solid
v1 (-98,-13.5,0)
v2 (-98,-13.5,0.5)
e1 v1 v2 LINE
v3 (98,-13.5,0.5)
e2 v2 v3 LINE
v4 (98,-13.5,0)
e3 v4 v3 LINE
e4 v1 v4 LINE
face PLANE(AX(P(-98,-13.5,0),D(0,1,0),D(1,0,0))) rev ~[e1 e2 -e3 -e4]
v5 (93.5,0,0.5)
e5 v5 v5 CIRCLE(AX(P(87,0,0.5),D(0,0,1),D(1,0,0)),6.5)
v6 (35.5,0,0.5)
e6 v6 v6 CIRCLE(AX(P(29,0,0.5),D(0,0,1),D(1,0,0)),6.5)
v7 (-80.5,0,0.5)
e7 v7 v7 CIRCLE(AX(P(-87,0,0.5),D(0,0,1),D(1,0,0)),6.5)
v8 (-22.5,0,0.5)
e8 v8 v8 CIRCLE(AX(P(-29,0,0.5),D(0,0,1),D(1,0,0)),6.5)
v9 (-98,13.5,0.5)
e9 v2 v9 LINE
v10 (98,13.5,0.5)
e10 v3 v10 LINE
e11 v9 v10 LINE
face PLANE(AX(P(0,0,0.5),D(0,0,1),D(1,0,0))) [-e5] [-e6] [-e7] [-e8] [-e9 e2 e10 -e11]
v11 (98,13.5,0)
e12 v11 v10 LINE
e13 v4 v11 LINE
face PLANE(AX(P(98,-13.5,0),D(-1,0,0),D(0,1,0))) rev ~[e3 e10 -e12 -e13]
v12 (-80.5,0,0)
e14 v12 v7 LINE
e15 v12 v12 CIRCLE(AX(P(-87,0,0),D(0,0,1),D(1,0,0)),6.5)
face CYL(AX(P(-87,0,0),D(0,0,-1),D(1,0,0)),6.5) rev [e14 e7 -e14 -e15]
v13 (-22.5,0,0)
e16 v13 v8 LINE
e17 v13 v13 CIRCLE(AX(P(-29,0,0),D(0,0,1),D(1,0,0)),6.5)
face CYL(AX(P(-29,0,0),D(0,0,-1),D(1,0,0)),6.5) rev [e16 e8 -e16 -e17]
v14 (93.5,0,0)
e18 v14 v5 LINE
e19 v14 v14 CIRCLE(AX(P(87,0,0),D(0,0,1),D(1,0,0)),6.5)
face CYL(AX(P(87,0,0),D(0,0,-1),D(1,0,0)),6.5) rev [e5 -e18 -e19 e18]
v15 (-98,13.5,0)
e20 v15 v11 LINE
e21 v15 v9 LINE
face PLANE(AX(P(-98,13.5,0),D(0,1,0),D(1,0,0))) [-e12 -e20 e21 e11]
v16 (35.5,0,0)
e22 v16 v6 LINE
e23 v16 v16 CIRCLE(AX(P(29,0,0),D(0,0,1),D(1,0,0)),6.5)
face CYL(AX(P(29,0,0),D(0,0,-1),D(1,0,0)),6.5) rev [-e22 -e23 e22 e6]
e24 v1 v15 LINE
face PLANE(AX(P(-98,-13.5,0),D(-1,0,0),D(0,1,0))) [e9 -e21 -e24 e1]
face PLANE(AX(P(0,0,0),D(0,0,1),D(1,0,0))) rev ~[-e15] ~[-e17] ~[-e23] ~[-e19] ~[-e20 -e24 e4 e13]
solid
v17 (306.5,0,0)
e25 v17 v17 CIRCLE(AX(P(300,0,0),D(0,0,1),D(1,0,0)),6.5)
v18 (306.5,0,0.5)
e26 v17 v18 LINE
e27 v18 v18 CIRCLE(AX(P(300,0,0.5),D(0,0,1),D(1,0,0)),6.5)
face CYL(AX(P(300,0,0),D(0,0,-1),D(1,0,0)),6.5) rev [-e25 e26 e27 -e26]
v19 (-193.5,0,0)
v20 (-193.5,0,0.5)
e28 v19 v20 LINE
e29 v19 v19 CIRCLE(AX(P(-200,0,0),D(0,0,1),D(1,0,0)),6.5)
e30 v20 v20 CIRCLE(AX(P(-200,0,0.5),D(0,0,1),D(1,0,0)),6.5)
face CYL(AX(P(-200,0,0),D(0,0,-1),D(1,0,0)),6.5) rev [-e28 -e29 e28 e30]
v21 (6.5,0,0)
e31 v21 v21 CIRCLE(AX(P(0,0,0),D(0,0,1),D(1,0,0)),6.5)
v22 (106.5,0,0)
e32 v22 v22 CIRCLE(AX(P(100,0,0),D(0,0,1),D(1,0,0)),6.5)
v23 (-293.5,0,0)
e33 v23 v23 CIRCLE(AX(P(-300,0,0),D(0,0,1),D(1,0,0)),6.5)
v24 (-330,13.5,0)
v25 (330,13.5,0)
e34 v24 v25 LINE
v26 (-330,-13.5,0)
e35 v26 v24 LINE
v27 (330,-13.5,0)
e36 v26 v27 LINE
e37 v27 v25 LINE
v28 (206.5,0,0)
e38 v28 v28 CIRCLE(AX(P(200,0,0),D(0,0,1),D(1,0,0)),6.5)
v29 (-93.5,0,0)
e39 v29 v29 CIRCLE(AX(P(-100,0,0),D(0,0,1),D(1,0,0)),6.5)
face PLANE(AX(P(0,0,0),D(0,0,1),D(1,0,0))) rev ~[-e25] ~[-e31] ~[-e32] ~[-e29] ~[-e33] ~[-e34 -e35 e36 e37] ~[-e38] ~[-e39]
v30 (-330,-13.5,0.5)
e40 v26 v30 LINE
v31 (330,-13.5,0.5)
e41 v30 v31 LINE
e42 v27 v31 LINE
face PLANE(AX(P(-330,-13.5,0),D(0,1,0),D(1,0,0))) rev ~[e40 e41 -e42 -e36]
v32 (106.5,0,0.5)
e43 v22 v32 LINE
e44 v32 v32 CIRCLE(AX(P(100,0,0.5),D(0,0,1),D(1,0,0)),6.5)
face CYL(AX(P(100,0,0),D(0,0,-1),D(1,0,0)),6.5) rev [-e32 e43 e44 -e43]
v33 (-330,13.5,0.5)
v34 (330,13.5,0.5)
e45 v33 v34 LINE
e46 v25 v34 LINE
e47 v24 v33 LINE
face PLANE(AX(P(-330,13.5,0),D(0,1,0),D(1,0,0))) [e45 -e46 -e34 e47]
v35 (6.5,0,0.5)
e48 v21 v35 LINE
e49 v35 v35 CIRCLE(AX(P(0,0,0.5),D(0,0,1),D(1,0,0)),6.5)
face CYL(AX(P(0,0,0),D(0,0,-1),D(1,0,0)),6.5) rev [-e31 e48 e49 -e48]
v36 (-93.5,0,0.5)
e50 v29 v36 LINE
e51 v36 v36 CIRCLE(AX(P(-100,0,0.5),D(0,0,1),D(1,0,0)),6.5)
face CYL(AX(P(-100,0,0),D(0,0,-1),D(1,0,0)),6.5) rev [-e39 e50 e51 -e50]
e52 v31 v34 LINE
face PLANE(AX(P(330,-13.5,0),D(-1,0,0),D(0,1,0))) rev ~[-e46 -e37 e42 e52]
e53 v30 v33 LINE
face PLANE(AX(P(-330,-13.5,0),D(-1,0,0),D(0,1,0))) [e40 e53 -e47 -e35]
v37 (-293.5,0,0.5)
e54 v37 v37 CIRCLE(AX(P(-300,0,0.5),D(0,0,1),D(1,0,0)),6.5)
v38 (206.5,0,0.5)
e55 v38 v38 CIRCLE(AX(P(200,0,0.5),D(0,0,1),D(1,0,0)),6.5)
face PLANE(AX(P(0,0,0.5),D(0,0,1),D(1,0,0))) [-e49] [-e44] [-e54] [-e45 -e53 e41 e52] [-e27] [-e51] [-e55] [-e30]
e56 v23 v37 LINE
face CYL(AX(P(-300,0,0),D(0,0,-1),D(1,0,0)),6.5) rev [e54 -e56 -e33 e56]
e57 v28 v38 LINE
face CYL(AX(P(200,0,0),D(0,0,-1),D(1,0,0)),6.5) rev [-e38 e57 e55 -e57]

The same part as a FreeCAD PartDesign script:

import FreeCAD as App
import Part
import Sketcher
from FreeCAD import Vector

doc = App.newDocument("Part")
body = doc.addObject("PartDesign::Body", "Body")

sketch1 = body.newObject("Sketcher::SketchObject", "Sketch")
sketch1.AttachmentSupport = (doc.getObject("XY_Plane"), [""])
sketch1.MapMode = "FlatFace"
sketch1.addGeometry(Part.LineSegment(Vector(-98, 13.5, 0), Vector(-98, -13.5, 0)), False)
sketch1.addGeometry(Part.LineSegment(Vector(-98, -13.5, 0), Vector(98, -13.5, 0)), False)
sketch1.addGeometry(Part.LineSegment(Vector(98, -13.5, 0), Vector(98, 13.5, 0)), False)
sketch1.addGeometry(Part.LineSegment(Vector(98, 13.5, 0), Vector(-98, 13.5, 0)), False)
sketch1.addGeometry(Part.Circle(Vector(-87, 0, 0), Vector(0, 0, 1), 6.5), False)
sketch1.addGeometry(Part.Circle(Vector(-29, 0, 0), Vector(0, 0, 1), 6.5), False)
sketch1.addGeometry(Part.Circle(Vector(29, 0, 0), Vector(0, 0, 1), 6.5), False)
sketch1.addGeometry(Part.Circle(Vector(87, 0, 0), Vector(0, 0, 1), 6.5), False)
sketch1.addConstraint(Sketcher.Constraint("Coincident", 0, 2, 1, 1))
sketch1.addConstraint(Sketcher.Constraint("Coincident", 1, 2, 2, 1))
sketch1.addConstraint(Sketcher.Constraint("Coincident", 2, 2, 3, 1))
sketch1.addConstraint(Sketcher.Constraint("Coincident", 3, 2, 0, 1))
sketch1.addConstraint(Sketcher.Constraint("Vertical", 0))
sketch1.addConstraint(Sketcher.Constraint("Horizontal", 1))
sketch1.addConstraint(Sketcher.Constraint("Vertical", 2))
sketch1.addConstraint(Sketcher.Constraint("Horizontal", 3))
sketch1.addConstraint(Sketcher.Constraint("Equal", 4, 5))
sketch1.addConstraint(Sketcher.Constraint("Equal", 5, 6))
sketch1.addConstraint(Sketcher.Constraint("Equal", 6, 7))
sketch1.addConstraint(Sketcher.Constraint("Symmetric", 5, 3, 6, 3, -1, 1))
sketch1.addConstraint(Sketcher.Constraint("Symmetric", 4, 3, 7, 3, -1, 1))
sketch1.addConstraint(Sketcher.Constraint("Symmetric", 0, 2, 2, 2, -1, 1))
sketch1.addConstraint(Sketcher.Constraint("PointOnObject", 4, 3, -1))
sketch1.addConstraint(Sketcher.Constraint("PointOnObject", 5, 3, -1))
sketch1.addConstraint(Sketcher.Constraint("Diameter", 4, 13.0))
sketch1.addConstraint(Sketcher.Constraint("DistanceX", 1, 1, 1, 2, 196.0))
sketch1.addConstraint(Sketcher.Constraint("DistanceY", 0, 2, 0, 1, 27.0))
sketch1.addConstraint(Sketcher.Constraint("DistanceX", 4, 3, -1, 1, 87.0))
sketch1.addConstraint(Sketcher.Constraint("DistanceX", 5, 3, -1, 1, 29.0))
pad1 = body.newObject("PartDesign::Pad", "Pad")
pad1.Profile = sketch1
pad1.Length = 0.5
body2 = doc.addObject("PartDesign::Body", "Body001")

sketch2 = body2.newObject("Sketcher::SketchObject", "Sketch001")
sketch2.AttachmentSupport = (doc.getObject("XY_Plane001"), [""])
sketch2.MapMode = "FlatFace"
sketch2.addGeometry(Part.LineSegment(Vector(-330, 13.5, 0), Vector(-330, -13.5, 0)), False)
sketch2.addGeometry(Part.LineSegment(Vector(-330, -13.5, 0), Vector(330, -13.5, 0)), False)
sketch2.addGeometry(Part.LineSegment(Vector(330, -13.5, 0), Vector(330, 13.5, 0)), False)
sketch2.addGeometry(Part.LineSegment(Vector(330, 13.5, 0), Vector(-330, 13.5, 0)), False)
sketch2.addGeometry(Part.Circle(Vector(-300, 0, 0), Vector(0, 0, 1), 6.5), False)
sketch2.addGeometry(Part.Circle(Vector(-200, 0, 0), Vector(0, 0, 1), 6.5), False)
sketch2.addGeometry(Part.Circle(Vector(-100, 0, 0), Vector(0, 0, 1), 6.5), False)
sketch2.addGeometry(Part.Circle(Vector(0, 0, 0), Vector(0, 0, 1), 6.5), False)
sketch2.addGeometry(Part.Circle(Vector(100, 0, 0), Vector(0, 0, 1), 6.5), False)
sketch2.addGeometry(Part.Circle(Vector(200, 0, 0), Vector(0, 0, 1), 6.5), False)
sketch2.addGeometry(Part.Circle(Vector(300, 0, 0), Vector(0, 0, 1), 6.5), False)
sketch2.addConstraint(Sketcher.Constraint("Coincident", 0, 2, 1, 1))
sketch2.addConstraint(Sketcher.Constraint("Coincident", 1, 2, 2, 1))
sketch2.addConstraint(Sketcher.Constraint("Coincident", 2, 2, 3, 1))
sketch2.addConstraint(Sketcher.Constraint("Coincident", 3, 2, 0, 1))
sketch2.addConstraint(Sketcher.Constraint("Vertical", 0))
sketch2.addConstraint(Sketcher.Constraint("Horizontal", 1))
sketch2.addConstraint(Sketcher.Constraint("Vertical", 2))
sketch2.addConstraint(Sketcher.Constraint("Horizontal", 3))
sketch2.addConstraint(Sketcher.Constraint("Coincident", 7, 3, -1, 1))
sketch2.addConstraint(Sketcher.Constraint("Equal", 4, 5))
sketch2.addConstraint(Sketcher.Constraint("Equal", 5, 6))
sketch2.addConstraint(Sketcher.Constraint("Equal", 6, 7))
sketch2.addConstraint(Sketcher.Constraint("Equal", 7, 8))
sketch2.addConstraint(Sketcher.Constraint("Equal", 8, 9))
sketch2.addConstraint(Sketcher.Constraint("Equal", 9, 10))
sketch2.addConstraint(Sketcher.Constraint("Symmetric", 6, 3, 8, 3, -1, 1))
sketch2.addConstraint(Sketcher.Constraint("Symmetric", 5, 3, 9, 3, -1, 1))
sketch2.addConstraint(Sketcher.Constraint("Symmetric", 4, 3, 10, 3, -1, 1))
sketch2.addConstraint(Sketcher.Constraint("Symmetric", 0, 2, 2, 2, -1, 1))
sketch2.addConstraint(Sketcher.Constraint("PointOnObject", 4, 3, -1))
sketch2.addConstraint(Sketcher.Constraint("PointOnObject", 5, 3, -1))
sketch2.addConstraint(Sketcher.Constraint("PointOnObject", 6, 3, -1))
sketch2.addConstraint(Sketcher.Constraint("Diameter", 4, 13.0))
sketch2.addConstraint(Sketcher.Constraint("DistanceX", 1, 1, 1, 2, 660.0))
sketch2.addConstraint(Sketcher.Constraint("DistanceY", 0, 2, 0, 1, 27.0))
sketch2.addConstraint(Sketcher.Constraint("DistanceX", 4, 3, -1, 1, 300.0))
sketch2.addConstraint(Sketcher.Constraint("DistanceX", 5, 3, -1, 1, 200.0))
sketch2.addConstraint(Sketcher.Constraint("DistanceX", 6, 3, -1, 1, 100.0))
pad2 = body2.newObject("PartDesign::Pad", "Pad001")
pad2.Profile = sketch2
pad2.Length = 0.5

doc.recompute()
